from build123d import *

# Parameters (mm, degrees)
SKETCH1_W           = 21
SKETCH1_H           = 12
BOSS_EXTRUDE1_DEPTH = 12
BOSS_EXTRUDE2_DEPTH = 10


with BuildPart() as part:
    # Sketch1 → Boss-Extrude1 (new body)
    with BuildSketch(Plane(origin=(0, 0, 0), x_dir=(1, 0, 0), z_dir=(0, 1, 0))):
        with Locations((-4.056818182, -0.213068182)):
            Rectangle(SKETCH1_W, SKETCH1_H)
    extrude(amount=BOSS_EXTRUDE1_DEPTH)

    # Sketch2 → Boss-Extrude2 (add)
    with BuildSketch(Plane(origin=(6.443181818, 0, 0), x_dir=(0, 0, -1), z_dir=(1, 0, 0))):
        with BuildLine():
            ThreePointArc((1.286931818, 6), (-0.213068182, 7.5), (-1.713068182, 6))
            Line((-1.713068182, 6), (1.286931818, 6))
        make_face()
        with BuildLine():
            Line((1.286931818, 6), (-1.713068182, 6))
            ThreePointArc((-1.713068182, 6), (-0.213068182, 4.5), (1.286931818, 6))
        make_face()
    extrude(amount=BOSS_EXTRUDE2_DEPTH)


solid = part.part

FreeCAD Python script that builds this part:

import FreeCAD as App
import Part
import Sketcher

V = App.Vector
Q = App.Units.Quantity


def add_polygon(sketch, points):
    """Adds a closed chain of lines whose ends are joined by coincident constraints."""
    first, n = sketch.GeometryCount, len(points)
    for a, b in zip(points, points[1:] + points[:1]):
        sketch.addGeometry(Part.LineSegment(App.Vector(*a, 0), App.Vector(*b, 0)), False)
    for i in range(n):
        sketch.addConstraint(Sketcher.Constraint("Coincident", first + i, 2, first + (i + 1) % n, 1))

doc = App.newDocument("Part")
body = doc.addObject("PartDesign::Body", "Body")

# Sketch on XZ plane
sketch1 = body.newObject("Sketcher::SketchObject", "Sketch")
sketch1.AttachmentSupport = (doc.getObject("XZ_Plane"), [""])
sketch1.MapMode = "FlatFace"
add_polygon(sketch1, [(-15, -6), (-15, 6), (6, 6), (6, -6)])  # lines 0-3
sketch1.addConstraint(Sketcher.Constraint("Vertical", 0))
sketch1.addConstraint(Sketcher.Constraint("Horizontal", 1))
sketch1.addConstraint(Sketcher.Constraint("Vertical", 2))
sketch1.addConstraint(Sketcher.Constraint("Horizontal", 3))
sketch1.addConstraint(Sketcher.Constraint("DistanceX", 1, 1, 1, 2, Q("21 mm")))
sketch1.addConstraint(Sketcher.Constraint("DistanceY", 0, 1, 0, 2, Q("12 mm")))
sketch1.addConstraint(Sketcher.Constraint("DistanceX", 0, 2, -1, 1, Q("14.556818 mm")))
sketch1.addConstraint(Sketcher.Constraint("DistanceY", -1, 1, 0, 2, Q("6.213068 mm")))
pad1 = body.newObject("PartDesign::Pad", "Pad")
pad1.Profile = sketch1
pad1.Length = 12
pad1.Reversed = True

# Sketch on YZ plane
sketch2 = body.newObject("Sketcher::SketchObject", "Sketch001")
sketch2.AttachmentSupport = (doc.getObject("YZ_Plane"), [""])
sketch2.MapMode = "FlatFace"
sketch2.AttachmentOffset = App.Placement(V(0, 0, 6.443182), App.Rotation())
sketch2.addGeometry(Part.Circle(V(6, 0.2, 0), V(0, 0, 1), 1.5), False)
sketch2.addConstraint(Sketcher.Constraint("Diameter", 0, Q("3 mm")))
sketch2.addConstraint(Sketcher.Constraint("DistanceX", -1, 1, 0, 3, Q("6 mm")))
sketch2.addConstraint(Sketcher.Constraint("DistanceY", -1, 1, 0, 3, Q("0.213068 mm")))
pad2 = body.newObject("PartDesign::Pad", "Pad001")
pad2.Profile = sketch2
pad2.Length = 10

doc.recompute()
